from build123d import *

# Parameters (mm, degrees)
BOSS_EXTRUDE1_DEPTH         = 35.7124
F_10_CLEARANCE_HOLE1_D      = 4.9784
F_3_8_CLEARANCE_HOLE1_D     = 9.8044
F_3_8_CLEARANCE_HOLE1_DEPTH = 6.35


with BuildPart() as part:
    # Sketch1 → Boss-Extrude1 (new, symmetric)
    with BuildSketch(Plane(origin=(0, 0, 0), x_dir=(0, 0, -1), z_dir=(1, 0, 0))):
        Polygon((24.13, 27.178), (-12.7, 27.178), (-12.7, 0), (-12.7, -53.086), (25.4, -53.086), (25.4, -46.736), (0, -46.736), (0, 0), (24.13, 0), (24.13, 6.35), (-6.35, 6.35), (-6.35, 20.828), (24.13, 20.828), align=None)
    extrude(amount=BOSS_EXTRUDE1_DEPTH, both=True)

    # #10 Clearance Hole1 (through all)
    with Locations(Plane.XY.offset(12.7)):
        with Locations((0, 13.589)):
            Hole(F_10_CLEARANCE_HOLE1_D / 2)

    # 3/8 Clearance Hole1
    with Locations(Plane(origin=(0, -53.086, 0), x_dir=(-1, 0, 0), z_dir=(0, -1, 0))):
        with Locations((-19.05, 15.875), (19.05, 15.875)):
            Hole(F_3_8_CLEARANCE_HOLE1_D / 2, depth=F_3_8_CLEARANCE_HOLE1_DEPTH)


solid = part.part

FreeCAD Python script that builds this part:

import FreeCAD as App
import Part
import Sketcher
Q = App.Units.Quantity


def add_polygon(sketch, points):
    """Adds a closed chain of lines whose ends are joined by coincident constraints."""
    first, n = sketch.GeometryCount, len(points)
    for a, b in zip(points, points[1:] + points[:1]):
        sketch.addGeometry(Part.LineSegment(App.Vector(*a, 0), App.Vector(*b, 0)), False)
    for i in range(n):
        sketch.addConstraint(Sketcher.Constraint("Coincident", first + i, 2, first + (i + 1) % n, 1))

doc = App.newDocument("Part")
body = doc.addObject("PartDesign::Body", "Body")

# Sketch on YZ plane
sketch1 = doc.addObject("Sketcher::SketchObject", "Sketch")
body.addObject(sketch1)
sketch1.AttachmentSupport = (doc.YZ_Plane, [""])
sketch1.MapMode = "FlatFace"
add_polygon(sketch1, [(27, -24), (27, 13), (-53, 13), (-53, -25), (-47, -25), (-47, 0), (0, 0), (0, -24), (6, -24), (6, 6), (21, 6), (21, -24)])  # lines 0-11
sketch1.addConstraint([
    Sketcher.Constraint("Vertical", 0),
    Sketcher.Constraint("Horizontal", 1),
    Sketcher.Constraint("Vertical", 2),
    Sketcher.Constraint("Horizontal", 3),
    Sketcher.Constraint("Vertical", 4),
    Sketcher.Constraint("Horizontal", 5),
    Sketcher.Constraint("Vertical", 6),
    Sketcher.Constraint("Horizontal", 7),
    Sketcher.Constraint("Vertical", 8),
    Sketcher.Constraint("Horizontal", 9),
    Sketcher.Constraint("Vertical", 10),
    Sketcher.Constraint("Horizontal", 11),
    Sketcher.Constraint("Coincident", 5, 2, -1, 1),
    Sketcher.Constraint("Horizontal", 7, 2, 10, 2),
    Sketcher.Constraint("Equal", 3, 7),
    Sketcher.Constraint("Equal", 7, 11),
    Sketcher.Constraint("DistanceY", 4, 1, 4, 2, Q("1 in")),
    Sketcher.Constraint("DistanceY", 2, 2, 2, 1, Q("1.5 in")),
    Sketcher.Constraint("DistanceY", 8, 1, 8, 2, Q("1.2 in")),
    Sketcher.Constraint("DistanceX", 1, 2, 1, 1, Q("3.16 in")),
    Sketcher.Constraint("DistanceX", 3, 1, 3, 2, Q("0.25 in")),
    Sketcher.Constraint("DistanceX", 5, 1, 5, 2, Q("1.84 in")),
    Sketcher.Constraint("DistanceY", 0, 1, 0, 2, Q("1.45 in")),
])
pad1 = doc.addObject("PartDesign::Pad", "Pad")
body.addObject(pad1)
pad1.Profile = sketch1
pad1.Length = Q("2.812 in")
pad1.Midplane = True

# Sketch on XY plane
sketch2 = doc.addObject("Sketcher::SketchObject", "Sketch001")
body.addObject(sketch2)
sketch2.AttachmentSupport = (doc.XY_Plane, [""])
sketch2.MapMode = "FlatFace"
sketch2.AttachmentOffset = App.Placement(App.Vector(0, 0, 0.5 * 25.4), App.Rotation())
sketch2.addGeometry(Part.Circle(App.Vector(0, 13.6, 0), App.Vector(0, 0, 1), 2.5), False)
sketch2.addConstraint([
    Sketcher.Constraint("PointOnObject", 0, 3, -2),
    Sketcher.Constraint("Diameter", 0, Q("0.196 in")),
    Sketcher.Constraint("DistanceY", -1, 1, 0, 3, Q("0.535 in")),
])
doc.recompute()
hole = doc.addObject("PartDesign::Hole", "Hole")
body.addObject(hole)
hole.Profile = sketch2
hole.ThreadType = "None"
hole.Diameter = Q("0.196 in")
hole.DepthType = "ThroughAll"

# Sketch on XZ plane
sketch3 = doc.addObject("Sketcher::SketchObject", "Sketch002")
body.addObject(sketch3)
sketch3.AttachmentSupport = (doc.XZ_Plane, [""])
sketch3.MapMode = "FlatFace"
sketch3.AttachmentOffset = App.Placement(App.Vector(0, 0, 2.09 * 25.4), App.Rotation())
sketch3.addGeometry([
    Part.Circle(App.Vector(19.1, -15.9, 0), App.Vector(0, 0, 1), 4.9),
    Part.Circle(App.Vector(-19.1, -15.9, 0), App.Vector(0, 0, 1), 4.9),
], False)
sketch3.addConstraint([
    Sketcher.Constraint("Equal", 0, 1),
    Sketcher.Constraint("Symmetric", 0, 3, 1, 3, -2),
    Sketcher.Constraint("Diameter", 0, Q("0.386 in")),
    Sketcher.Constraint("DistanceX", 1, 3, 0, 3, Q("1.5 in")),
    Sketcher.Constraint("DistanceY", 0, 3, -1, 1, Q("0.625 in")),
])
doc.recompute()
hole2 = doc.addObject("PartDesign::Hole", "Hole001")
body.addObject(hole2)
hole2.Profile = sketch3
hole2.ThreadType = "None"
hole2.Diameter = Q("0.386 in")
hole2.DepthType = "Dimension"
hole2.Depth = Q("0.25 in")
hole2.DrillPoint = "Flat"

doc.recompute()
